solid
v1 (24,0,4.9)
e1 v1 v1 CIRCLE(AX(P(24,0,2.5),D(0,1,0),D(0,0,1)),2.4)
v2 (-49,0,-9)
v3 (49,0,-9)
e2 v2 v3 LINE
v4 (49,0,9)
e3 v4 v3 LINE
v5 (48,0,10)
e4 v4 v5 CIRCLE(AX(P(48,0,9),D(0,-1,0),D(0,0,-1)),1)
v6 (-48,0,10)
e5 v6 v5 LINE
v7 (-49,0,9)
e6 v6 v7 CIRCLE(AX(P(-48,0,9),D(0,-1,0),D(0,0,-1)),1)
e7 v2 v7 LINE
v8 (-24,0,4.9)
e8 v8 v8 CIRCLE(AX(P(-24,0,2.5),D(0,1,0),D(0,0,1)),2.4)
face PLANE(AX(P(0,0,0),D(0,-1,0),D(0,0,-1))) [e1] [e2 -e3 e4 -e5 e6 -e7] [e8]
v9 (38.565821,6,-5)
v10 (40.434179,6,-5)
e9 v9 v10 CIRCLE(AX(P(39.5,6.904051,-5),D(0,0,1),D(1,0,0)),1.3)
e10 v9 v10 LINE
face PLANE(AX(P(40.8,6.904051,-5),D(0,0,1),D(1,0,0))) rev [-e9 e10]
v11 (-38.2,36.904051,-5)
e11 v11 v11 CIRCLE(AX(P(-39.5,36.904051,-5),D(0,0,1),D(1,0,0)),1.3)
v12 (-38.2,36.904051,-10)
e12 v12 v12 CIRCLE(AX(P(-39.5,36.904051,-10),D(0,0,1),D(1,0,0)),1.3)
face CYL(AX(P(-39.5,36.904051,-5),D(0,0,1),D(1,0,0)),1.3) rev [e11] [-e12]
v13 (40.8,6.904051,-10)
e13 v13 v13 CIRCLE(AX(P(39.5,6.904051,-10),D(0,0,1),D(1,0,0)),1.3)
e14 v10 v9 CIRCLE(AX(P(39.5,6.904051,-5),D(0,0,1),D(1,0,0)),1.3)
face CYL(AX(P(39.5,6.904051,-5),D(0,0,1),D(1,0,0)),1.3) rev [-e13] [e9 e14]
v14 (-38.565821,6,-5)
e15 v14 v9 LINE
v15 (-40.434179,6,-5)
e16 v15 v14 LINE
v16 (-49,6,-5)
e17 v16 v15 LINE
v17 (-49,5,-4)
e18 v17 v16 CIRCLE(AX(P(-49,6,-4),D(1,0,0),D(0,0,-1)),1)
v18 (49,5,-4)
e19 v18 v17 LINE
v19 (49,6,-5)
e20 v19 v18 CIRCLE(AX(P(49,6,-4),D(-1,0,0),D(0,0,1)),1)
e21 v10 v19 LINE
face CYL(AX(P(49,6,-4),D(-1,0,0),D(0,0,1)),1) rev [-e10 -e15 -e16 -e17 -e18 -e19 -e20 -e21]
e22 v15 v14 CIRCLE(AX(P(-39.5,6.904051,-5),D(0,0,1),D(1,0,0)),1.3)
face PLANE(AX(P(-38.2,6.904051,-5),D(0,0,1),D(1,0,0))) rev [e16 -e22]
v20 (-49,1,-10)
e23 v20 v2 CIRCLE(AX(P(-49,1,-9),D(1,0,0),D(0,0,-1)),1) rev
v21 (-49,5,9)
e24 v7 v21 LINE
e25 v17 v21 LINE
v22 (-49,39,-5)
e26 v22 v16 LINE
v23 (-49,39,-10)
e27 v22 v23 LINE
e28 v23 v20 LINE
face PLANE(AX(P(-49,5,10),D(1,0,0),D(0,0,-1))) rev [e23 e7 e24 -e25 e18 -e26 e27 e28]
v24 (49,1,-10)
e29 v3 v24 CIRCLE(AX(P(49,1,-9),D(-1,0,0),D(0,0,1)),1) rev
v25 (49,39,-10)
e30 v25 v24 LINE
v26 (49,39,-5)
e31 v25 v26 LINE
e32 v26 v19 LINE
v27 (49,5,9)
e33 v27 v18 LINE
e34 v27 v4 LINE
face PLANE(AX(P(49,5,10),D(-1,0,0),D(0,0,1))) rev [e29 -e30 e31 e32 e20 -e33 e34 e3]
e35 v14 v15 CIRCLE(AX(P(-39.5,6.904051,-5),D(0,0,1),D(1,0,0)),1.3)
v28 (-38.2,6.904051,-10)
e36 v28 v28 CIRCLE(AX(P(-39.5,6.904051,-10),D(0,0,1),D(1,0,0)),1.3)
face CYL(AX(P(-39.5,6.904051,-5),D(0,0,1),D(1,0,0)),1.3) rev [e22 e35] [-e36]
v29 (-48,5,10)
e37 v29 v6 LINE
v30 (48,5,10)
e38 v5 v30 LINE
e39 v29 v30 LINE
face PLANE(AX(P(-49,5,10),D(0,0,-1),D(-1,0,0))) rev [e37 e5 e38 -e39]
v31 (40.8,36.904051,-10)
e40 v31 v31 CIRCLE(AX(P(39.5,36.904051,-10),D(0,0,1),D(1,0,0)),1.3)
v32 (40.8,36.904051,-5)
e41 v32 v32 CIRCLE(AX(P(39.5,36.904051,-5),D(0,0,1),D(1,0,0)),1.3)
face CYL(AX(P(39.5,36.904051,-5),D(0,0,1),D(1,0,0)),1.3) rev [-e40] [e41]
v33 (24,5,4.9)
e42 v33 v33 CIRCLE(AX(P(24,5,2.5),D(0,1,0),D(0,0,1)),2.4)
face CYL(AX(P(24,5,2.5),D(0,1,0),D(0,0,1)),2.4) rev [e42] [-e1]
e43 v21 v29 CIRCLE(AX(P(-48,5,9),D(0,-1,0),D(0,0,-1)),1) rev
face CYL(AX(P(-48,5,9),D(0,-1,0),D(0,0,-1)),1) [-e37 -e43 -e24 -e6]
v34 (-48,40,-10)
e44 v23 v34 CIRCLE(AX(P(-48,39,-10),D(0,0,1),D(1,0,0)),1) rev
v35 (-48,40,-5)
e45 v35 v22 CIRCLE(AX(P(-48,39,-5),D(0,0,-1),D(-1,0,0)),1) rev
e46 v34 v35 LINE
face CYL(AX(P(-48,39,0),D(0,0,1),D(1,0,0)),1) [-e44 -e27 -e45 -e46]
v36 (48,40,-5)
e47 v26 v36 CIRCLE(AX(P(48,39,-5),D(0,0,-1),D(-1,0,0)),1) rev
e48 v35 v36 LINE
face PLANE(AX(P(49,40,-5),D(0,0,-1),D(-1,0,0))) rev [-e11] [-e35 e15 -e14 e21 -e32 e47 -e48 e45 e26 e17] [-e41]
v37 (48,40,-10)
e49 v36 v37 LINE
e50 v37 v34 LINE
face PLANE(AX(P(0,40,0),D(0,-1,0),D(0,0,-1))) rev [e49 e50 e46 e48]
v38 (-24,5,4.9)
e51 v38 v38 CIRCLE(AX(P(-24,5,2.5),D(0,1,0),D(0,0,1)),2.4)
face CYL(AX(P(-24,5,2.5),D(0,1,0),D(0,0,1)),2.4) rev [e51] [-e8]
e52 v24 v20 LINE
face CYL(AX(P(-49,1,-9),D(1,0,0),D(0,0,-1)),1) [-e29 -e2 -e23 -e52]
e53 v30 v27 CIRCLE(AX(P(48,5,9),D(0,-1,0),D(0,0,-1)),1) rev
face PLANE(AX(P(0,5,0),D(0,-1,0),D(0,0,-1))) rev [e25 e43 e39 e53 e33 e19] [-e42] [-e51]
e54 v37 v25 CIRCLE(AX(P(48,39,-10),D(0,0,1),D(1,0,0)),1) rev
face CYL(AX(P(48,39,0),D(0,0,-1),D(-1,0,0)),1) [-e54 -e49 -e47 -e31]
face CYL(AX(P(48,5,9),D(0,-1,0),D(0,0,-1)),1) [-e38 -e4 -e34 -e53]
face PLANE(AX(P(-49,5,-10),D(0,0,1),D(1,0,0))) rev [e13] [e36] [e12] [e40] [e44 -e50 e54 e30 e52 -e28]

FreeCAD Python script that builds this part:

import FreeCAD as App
import Part
import Sketcher

V = App.Vector
Q = App.Units.Quantity


def edges_at(feature, points):
    """Names of the edges that pass closest to the given points."""
    edges = feature.Shape.Edges
    near = lambda p: min(range(len(edges)), key=lambda i: edges[i].distToShape(Part.Vertex(*p))[0])
    return sorted({f"Edge{near(p) + 1}" for p in points})

doc = App.newDocument("Part")
params = doc.addObject("Spreadsheet::Sheet", "Params")
for row, (alias, value) in enumerate([
    ("sketch1_width", "98 mm"),
    ("sketch1_height", "20 mm"),
    ("pad1_length", "5 mm"),
    ("sketch2_width", "98 mm"),
    ("sketch2_height", "5 mm"),
    ("pad2_length", "35 mm"),
    ("fillet_radius", "1 mm"),
    ("sketch3_height", "5 mm"),
    ("sketch3_width", "1.3 mm"),
    ("groove_angle", "360 deg"),
    ("linearpattern_pitch", "30 mm"),
    ("linearpattern2_pitch", "79 mm"),
    ("linearpattern3_pitch", "84.504438 mm"),
    ("sketch4_diameter", "4.8 mm"),
    ("hole_diameter", "4.8 mm"),
], start=1):
    params.set(f"A{row}", alias)
    params.set(f"B{row}", "=" + value)
    params.setAlias(f"B{row}", alias)

body = doc.addObject("PartDesign::Body", "Body")

sketch1 = body.newObject("Sketcher::SketchObject", "Sketch")
sketch1.AttachmentSupport = (doc.getObject("XZ_Plane"), [""])
sketch1.MapMode = "FlatFace"
sketch1.addGeometry(Part.LineSegment(V(-49, -10, 0), V(-49, 10, 0)), False)
sketch1.addGeometry(Part.LineSegment(V(-49, 10, 0), V(49, 10, 0)), False)
sketch1.addGeometry(Part.LineSegment(V(49, 10, 0), V(49, -10, 0)), False)
sketch1.addGeometry(Part.LineSegment(V(49, -10, 0), V(-49, -10, 0)), False)
sketch1.addConstraint(Sketcher.Constraint("Coincident", 0, 2, 1, 1))
sketch1.addConstraint(Sketcher.Constraint("Coincident", 1, 2, 2, 1))
sketch1.addConstraint(Sketcher.Constraint("Coincident", 2, 2, 3, 1))
sketch1.addConstraint(Sketcher.Constraint("Coincident", 3, 2, 0, 1))
sketch1.addConstraint(Sketcher.Constraint("Vertical", 0))
sketch1.addConstraint(Sketcher.Constraint("Horizontal", 1))
sketch1.addConstraint(Sketcher.Constraint("Vertical", 2))
sketch1.addConstraint(Sketcher.Constraint("Horizontal", 3))
sketch1.addConstraint(Sketcher.Constraint("Symmetric", 0, 2, 2, 2, -1, 1))
sketch1.addConstraint(Sketcher.Constraint("DistanceX", 1, 1, 1, 2, Q("98 mm")))
sketch1.addConstraint(Sketcher.Constraint("DistanceY", 0, 1, 0, 2, Q("20 mm")))
sketch1.setExpression("Constraints[9]", "Params.sketch1_width")
sketch1.setExpression("Constraints[10]", "Params.sketch1_height")
pad1 = body.newObject("PartDesign::Pad", "Pad")
pad1.Profile = sketch1
pad1.setExpression("Length", "Params.pad1_length")
pad1.Reversed = True

sketch2 = body.newObject("Sketcher::SketchObject", "Sketch001")
sketch2.AttachmentSupport = (doc.getObject("XZ_Plane"), [""])
sketch2.MapMode = "FlatFace"
sketch2.AttachmentOffset = App.Placement(V(0, 0, -5), App.Rotation())
sketch2.addGeometry(Part.LineSegment(V(-49, -10, 0), V(-49, -5, 0)), False)
sketch2.addGeometry(Part.LineSegment(V(-49, -5, 0), V(49, -5, 0)), False)
sketch2.addGeometry(Part.LineSegment(V(49, -5, 0), V(49, -10, 0)), False)
sketch2.addGeometry(Part.LineSegment(V(49, -10, 0), V(-49, -10, 0)), False)
sketch2.addConstraint(Sketcher.Constraint("Coincident", 0, 2, 1, 1))
sketch2.addConstraint(Sketcher.Constraint("Coincident", 1, 2, 2, 1))
sketch2.addConstraint(Sketcher.Constraint("Coincident", 2, 2, 3, 1))
sketch2.addConstraint(Sketcher.Constraint("Coincident", 3, 2, 0, 1))
sketch2.addConstraint(Sketcher.Constraint("Vertical", 0))
sketch2.addConstraint(Sketcher.Constraint("Horizontal", 1))
sketch2.addConstraint(Sketcher.Constraint("Vertical", 2))
sketch2.addConstraint(Sketcher.Constraint("Horizontal", 3))
sketch2.addConstraint(Sketcher.Constraint("DistanceX", 1, 1, 1, 2, Q("98 mm")))
sketch2.addConstraint(Sketcher.Constraint("DistanceY", 0, 1, 0, 2, Q("5 mm")))
sketch2.addConstraint(Sketcher.Constraint("DistanceX", 0, 2, -1, 1, Q("49 mm")))
sketch2.addConstraint(Sketcher.Constraint("DistanceY", 0, 2, -1, 1, Q("5 mm")))
sketch2.setExpression("Constraints[8]", "Params.sketch2_width")
sketch2.setExpression("Constraints[9]", "Params.sketch2_height")
pad2 = body.newObject("PartDesign::Pad", "Pad001")
pad2.Profile = sketch2
pad2.setExpression("Length", "Params.pad2_length")
pad2.Reversed = True
doc.recompute()

fillet = body.newObject("PartDesign::Fillet", "Fillet")
fillet.Base = (pad2, edges_at(pad2, [
    (0, 5, -5),
    (49, 40, -7.5),
    (-49, 40, -7.5),
    (0, 0, -10),
    (49, 2.5, 10),
    (-49, 2.5, 10),
]))
fillet.setExpression("Radius", "Params.fillet_radius")

sketch3 = body.newObject("Sketcher::SketchObject", "Sketch002")
sketch3.AttachmentSupport = (doc.getObject("YZ_Plane"), [""])
sketch3.MapMode = "FlatFace"
sketch3.AttachmentOffset = App.Placement(V(0, 0, 39.5), App.Rotation())
sketch3.addGeometry(Part.LineSegment(V(36.9, -10, 0), V(36.9, -5, 0)), False)
sketch3.addGeometry(Part.LineSegment(V(36.9, -5, 0), V(35.6, -5, 0)), False)
sketch3.addGeometry(Part.LineSegment(V(35.6, -5, 0), V(35.6, -10, 0)), False)
sketch3.addGeometry(Part.LineSegment(V(35.6, -10, 0), V(36.9, -10, 0)), False)
sketch3.addGeometry(Part.LineSegment(V(36.9, -5, 0), V(36.9, -10, 0)), True)
sketch3.addConstraint(Sketcher.Constraint("Coincident", 0, 2, 1, 1))
sketch3.addConstraint(Sketcher.Constraint("Coincident", 1, 2, 2, 1))
sketch3.addConstraint(Sketcher.Constraint("Coincident", 2, 2, 3, 1))
sketch3.addConstraint(Sketcher.Constraint("Coincident", 3, 2, 0, 1))
sketch3.addConstraint(Sketcher.Constraint("Vertical", 0))
sketch3.addConstraint(Sketcher.Constraint("Horizontal", 1))
sketch3.addConstraint(Sketcher.Constraint("Vertical", 2))
sketch3.addConstraint(Sketcher.Constraint("Horizontal", 3))
sketch3.addConstraint(Sketcher.Constraint("Vertical", 4))
sketch3.addConstraint(Sketcher.Constraint("Coincident", 4, 1, 0, 2))
sketch3.addConstraint(Sketcher.Constraint("Horizontal", 2, 2, 4, 2))
sketch3.addConstraint(Sketcher.Constraint("DistanceY", 0, 1, 0, 2, Q("5 mm")))
sketch3.addConstraint(Sketcher.Constraint("DistanceX", 1, 2, 1, 1, Q("1.3 mm")))
sketch3.addConstraint(Sketcher.Constraint("DistanceY", 0, 2, -1, 1, Q("5 mm")))
sketch3.addConstraint(Sketcher.Constraint("DistanceX", -1, 1, 0, 2, Q("36.904051 mm")))
sketch3.setExpression("Constraints[11]", "Params.sketch3_height")
sketch3.setExpression("Constraints[12]", "Params.sketch3_width")
groove = body.newObject("PartDesign::Groove", "Groove")
groove.Profile = sketch3
groove.ReferenceAxis = (sketch3, ["Axis0"])
groove.setExpression("Angle", "Params.groove_angle")
doc.recompute()

linearpattern = body.newObject("PartDesign::LinearPattern", "LinearPattern")
linearpattern.Originals = [groove]
linearpattern.Direction = (doc.getObject("Y_Axis"), [""])
linearpattern.Mode = "offset"
linearpattern.setExpression("Offset", "Params.linearpattern_pitch")
linearpattern.Occurrences = 2
linearpattern.Reversed = True
body.Tip = linearpattern
doc.recompute()

linearpattern2 = body.newObject("PartDesign::LinearPattern", "LinearPattern001")
linearpattern2.Originals = [groove]
linearpattern2.Direction = (doc.getObject("X_Axis"), [""])
linearpattern2.Mode = "offset"
linearpattern2.setExpression("Offset", "Params.linearpattern2_pitch")
linearpattern2.Occurrences = 2
linearpattern2.Reversed = True
body.Tip = linearpattern2
doc.recompute()

datumline = body.newObject("PartDesign::Line", "DatumLine")
datumline.Placement = App.Placement(V(0, 0, 0), App.Rotation(V(0, 0, 1), V(-0.934862146, -0.355010941, 0)))
linearpattern3 = body.newObject("PartDesign::LinearPattern", "LinearPattern002")
linearpattern3.Originals = [groove]
linearpattern3.Direction = (datumline, [""])
linearpattern3.Mode = "offset"
linearpattern3.setExpression("Offset", "Params.linearpattern3_pitch")
linearpattern3.Occurrences = 2
body.Tip = linearpattern3

sketch4 = body.newObject("Sketcher::SketchObject", "Sketch003")
sketch4.AttachmentSupport = (doc.getObject("XZ_Plane"), [""])
sketch4.MapMode = "FlatFace"
sketch4.AttachmentOffset = App.Placement(V(0, 0, -5), App.Rotation())
sketch4.addGeometry(Part.Circle(V(-24, 2.5, 0), V(0, 0, 1), 2.4), False)
sketch4.addGeometry(Part.Circle(V(24, 2.5, 0), V(0, 0, 1), 2.4), False)
sketch4.addConstraint(Sketcher.Constraint("Equal", 0, 1))
sketch4.addConstraint(Sketcher.Constraint("Symmetric", 0, 3, 1, 3, -2))
sketch4.addConstraint(Sketcher.Constraint("Diameter", 0, Q("4.8 mm")))
sketch4.addConstraint(Sketcher.Constraint("DistanceX", 0, 3, -1, 1, Q("24 mm")))
sketch4.addConstraint(Sketcher.Constraint("DistanceY", -1, 1, 0, 3, Q("2.5 mm")))
sketch4.setExpression("Constraints[2]", "Params.sketch4_diameter")
doc.recompute()
hole = body.newObject("PartDesign::Hole", "Hole")
hole.Profile = sketch4
hole.ThreadType = "None"
hole.setExpression("Diameter", "Params.hole_diameter")
hole.DepthType = "ThroughAll"
hole.Reversed = True

doc.recompute()
